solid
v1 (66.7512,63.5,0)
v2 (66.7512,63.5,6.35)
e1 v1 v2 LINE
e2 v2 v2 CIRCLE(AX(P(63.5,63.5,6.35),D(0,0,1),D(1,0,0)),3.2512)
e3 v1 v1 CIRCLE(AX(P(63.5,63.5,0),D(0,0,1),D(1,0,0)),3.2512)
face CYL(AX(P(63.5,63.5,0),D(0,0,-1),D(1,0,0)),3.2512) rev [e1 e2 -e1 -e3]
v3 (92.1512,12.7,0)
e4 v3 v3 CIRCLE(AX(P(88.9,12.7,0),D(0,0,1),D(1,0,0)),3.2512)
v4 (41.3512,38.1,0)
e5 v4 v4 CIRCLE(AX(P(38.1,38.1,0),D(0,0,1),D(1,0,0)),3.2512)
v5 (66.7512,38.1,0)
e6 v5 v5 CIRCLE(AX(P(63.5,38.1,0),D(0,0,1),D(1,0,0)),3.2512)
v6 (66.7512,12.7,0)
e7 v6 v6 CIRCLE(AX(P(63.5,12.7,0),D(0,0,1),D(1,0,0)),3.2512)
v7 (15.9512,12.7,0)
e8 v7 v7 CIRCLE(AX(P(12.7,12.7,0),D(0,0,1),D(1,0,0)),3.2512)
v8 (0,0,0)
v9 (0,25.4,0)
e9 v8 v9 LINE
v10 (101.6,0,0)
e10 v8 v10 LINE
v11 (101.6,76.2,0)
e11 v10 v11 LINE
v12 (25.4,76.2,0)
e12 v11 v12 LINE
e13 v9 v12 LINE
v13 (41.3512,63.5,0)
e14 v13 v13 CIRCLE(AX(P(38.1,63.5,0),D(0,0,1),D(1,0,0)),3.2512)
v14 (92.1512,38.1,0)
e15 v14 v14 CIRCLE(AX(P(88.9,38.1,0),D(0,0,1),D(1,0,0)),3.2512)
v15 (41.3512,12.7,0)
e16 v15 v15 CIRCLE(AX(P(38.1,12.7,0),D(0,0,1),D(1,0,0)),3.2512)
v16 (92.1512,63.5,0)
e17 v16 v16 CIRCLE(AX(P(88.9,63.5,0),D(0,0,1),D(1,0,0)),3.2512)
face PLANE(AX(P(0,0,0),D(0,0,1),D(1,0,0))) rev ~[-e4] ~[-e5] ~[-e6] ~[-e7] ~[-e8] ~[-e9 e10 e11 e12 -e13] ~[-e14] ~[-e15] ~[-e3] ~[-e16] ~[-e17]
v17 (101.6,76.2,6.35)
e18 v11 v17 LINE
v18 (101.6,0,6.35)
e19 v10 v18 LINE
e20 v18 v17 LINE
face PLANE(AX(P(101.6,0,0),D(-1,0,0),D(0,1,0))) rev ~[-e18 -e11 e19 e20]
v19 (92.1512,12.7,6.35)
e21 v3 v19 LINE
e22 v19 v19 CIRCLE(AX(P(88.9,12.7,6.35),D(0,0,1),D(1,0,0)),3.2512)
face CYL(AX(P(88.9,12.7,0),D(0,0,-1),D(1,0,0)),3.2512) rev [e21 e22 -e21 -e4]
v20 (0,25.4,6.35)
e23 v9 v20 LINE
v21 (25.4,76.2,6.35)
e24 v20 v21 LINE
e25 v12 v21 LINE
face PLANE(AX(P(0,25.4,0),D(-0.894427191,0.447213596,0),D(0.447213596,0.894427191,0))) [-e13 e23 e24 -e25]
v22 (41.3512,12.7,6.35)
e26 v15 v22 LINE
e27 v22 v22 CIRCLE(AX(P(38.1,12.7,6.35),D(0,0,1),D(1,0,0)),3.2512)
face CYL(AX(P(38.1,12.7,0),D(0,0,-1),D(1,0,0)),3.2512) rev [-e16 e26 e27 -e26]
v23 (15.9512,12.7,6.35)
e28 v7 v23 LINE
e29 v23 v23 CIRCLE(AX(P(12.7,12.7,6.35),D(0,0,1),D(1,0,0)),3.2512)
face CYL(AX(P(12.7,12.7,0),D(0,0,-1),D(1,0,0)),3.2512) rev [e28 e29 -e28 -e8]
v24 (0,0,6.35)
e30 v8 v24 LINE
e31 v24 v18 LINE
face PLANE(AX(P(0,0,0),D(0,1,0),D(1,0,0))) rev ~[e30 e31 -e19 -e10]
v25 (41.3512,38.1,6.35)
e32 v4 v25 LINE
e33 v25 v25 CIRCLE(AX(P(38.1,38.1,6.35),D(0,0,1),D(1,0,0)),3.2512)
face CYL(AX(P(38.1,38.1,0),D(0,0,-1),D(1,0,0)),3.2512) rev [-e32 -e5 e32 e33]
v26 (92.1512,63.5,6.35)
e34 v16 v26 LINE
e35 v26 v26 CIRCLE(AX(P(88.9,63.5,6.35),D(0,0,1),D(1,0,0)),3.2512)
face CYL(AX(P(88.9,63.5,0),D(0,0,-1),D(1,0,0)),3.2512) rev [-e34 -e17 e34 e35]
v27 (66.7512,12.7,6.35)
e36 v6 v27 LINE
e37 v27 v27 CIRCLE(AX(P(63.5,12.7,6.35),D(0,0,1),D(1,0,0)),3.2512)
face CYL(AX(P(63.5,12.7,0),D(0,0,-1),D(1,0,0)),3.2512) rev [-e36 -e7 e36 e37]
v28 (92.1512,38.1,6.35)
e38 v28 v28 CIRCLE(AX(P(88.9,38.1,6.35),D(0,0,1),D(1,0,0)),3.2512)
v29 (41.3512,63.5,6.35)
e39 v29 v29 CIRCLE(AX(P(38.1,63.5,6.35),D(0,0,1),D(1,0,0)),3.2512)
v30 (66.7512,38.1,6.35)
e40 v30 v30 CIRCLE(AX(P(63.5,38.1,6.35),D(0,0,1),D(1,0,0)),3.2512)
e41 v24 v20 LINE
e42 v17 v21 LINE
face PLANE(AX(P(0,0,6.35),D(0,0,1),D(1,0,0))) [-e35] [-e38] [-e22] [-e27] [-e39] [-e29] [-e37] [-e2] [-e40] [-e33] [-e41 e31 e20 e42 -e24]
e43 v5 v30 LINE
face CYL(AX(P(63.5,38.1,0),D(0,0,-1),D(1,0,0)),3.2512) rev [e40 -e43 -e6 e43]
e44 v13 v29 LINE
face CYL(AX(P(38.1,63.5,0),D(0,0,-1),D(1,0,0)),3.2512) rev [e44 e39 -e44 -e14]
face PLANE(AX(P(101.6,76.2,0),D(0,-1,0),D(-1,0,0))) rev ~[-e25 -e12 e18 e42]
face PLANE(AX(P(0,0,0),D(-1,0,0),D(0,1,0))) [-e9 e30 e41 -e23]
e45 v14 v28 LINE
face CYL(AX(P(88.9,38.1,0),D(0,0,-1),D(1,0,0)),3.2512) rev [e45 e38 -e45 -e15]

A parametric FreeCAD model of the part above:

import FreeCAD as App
import Part
import Sketcher
from FreeCAD import Vector
Q = App.Units.Quantity


def add_polygon(sketch, points):
    """Adds a closed chain of lines whose ends are joined by coincident constraints."""
    first, n = sketch.GeometryCount, len(points)
    for a, b in zip(points, points[1:] + points[:1]):
        sketch.addGeometry(Part.LineSegment(App.Vector(*a, 0), App.Vector(*b, 0)), False)
    for i in range(n):
        sketch.addConstraint(Sketcher.Constraint("Coincident", first + i, 2, first + (i + 1) % n, 1))

doc = App.newDocument("Part")
body = doc.addObject("PartDesign::Body", "Body")

# Sketch on XY plane
sketch1 = doc.addObject("Sketcher::SketchObject", "Sketch")
body.addObject(sketch1)
sketch1.AttachmentSupport = (doc.XY_Plane, [""])
sketch1.MapMode = "FlatFace"
add_polygon(sketch1, [(0, 25.4), (0, 0), (101.6, 0), (101.6, 76.2), (25.4, 76.2)])  # lines 0-4
sketch1.addGeometry(Part.Circle(Vector(12.7, 12.7, 0), Vector(0, 0, 1), 3.2512), False)  # 5
sketch1.addGeometry(Part.Circle(Vector(38.1, 12.7, 0), Vector(0, 0, 1), 3.2512), False)  # 6
sketch1.addGeometry(Part.Circle(Vector(38.1, 38.1, 0), Vector(0, 0, 1), 3.2512), False)  # 7
sketch1.addGeometry(Part.Circle(Vector(63.5, 12.7, 0), Vector(0, 0, 1), 3.2512), False)  # 8
sketch1.addGeometry(Part.Circle(Vector(88.9, 12.7, 0), Vector(0, 0, 1), 3.2512), False)  # 9
sketch1.addGeometry(Part.Circle(Vector(63.5, 38.1, 0), Vector(0, 0, 1), 3.2512), False)  # 10
sketch1.addGeometry(Part.Circle(Vector(88.9, 38.1, 0), Vector(0, 0, 1), 3.2512), False)  # 11
sketch1.addGeometry(Part.Circle(Vector(38.1, 63.5, 0), Vector(0, 0, 1), 3.2512), False)  # 12
sketch1.addGeometry(Part.Circle(Vector(63.5, 63.5, 0), Vector(0, 0, 1), 3.2512), False)  # 13
sketch1.addGeometry(Part.Circle(Vector(88.9, 63.5, 0), Vector(0, 0, 1), 3.2512), False)  # 14
sketch1.addConstraint([
    Sketcher.Constraint("Vertical", 0),
    Sketcher.Constraint("Horizontal", 1),
    Sketcher.Constraint("Vertical", 2),
    Sketcher.Constraint("Horizontal", 3),
    Sketcher.Constraint("Coincident", 0, 2, -1, 1),
    Sketcher.Constraint("Equal", 5, 6),
    Sketcher.Constraint("Equal", 6, 7),
    Sketcher.Constraint("Equal", 7, 8),
    Sketcher.Constraint("Equal", 8, 9),
    Sketcher.Constraint("Equal", 9, 10),
    Sketcher.Constraint("Equal", 10, 11),
    Sketcher.Constraint("Equal", 11, 12),
    Sketcher.Constraint("Equal", 12, 13),
    Sketcher.Constraint("Equal", 13, 14),
    Sketcher.Constraint("Horizontal", 5, 3, 6, 3),
    Sketcher.Constraint("Horizontal", 6, 3, 8, 3),
    Sketcher.Constraint("Horizontal", 8, 3, 9, 3),
    Sketcher.Constraint("Horizontal", 7, 3, 10, 3),
    Sketcher.Constraint("Horizontal", 10, 3, 11, 3),
    Sketcher.Constraint("Horizontal", 12, 3, 13, 3),
    Sketcher.Constraint("Horizontal", 13, 3, 14, 3),
    Sketcher.Constraint("Vertical", 6, 3, 7, 3),
    Sketcher.Constraint("Vertical", 8, 3, 10, 3),
    Sketcher.Constraint("Vertical", 9, 3, 11, 3),
    Sketcher.Constraint("Vertical", 7, 3, 12, 3),
    Sketcher.Constraint("Vertical", 10, 3, 13, 3),
    Sketcher.Constraint("Vertical", 11, 3, 14, 3),
    Sketcher.Constraint("Equal", 3, 2),
    Sketcher.Constraint("DistanceX", 1, 1, 1, 2, Q("4 in")),
    Sketcher.Constraint("DistanceX", 3, 2, 3, 1, Q("3 in")),
    Sketcher.Constraint("DistanceY", 0, 2, 0, 1, Q("1 in")),
    Sketcher.Constraint("Diameter", 5, Q("0.256 in")),
    Sketcher.Constraint("DistanceX", 5, 3, 6, 3, Q("1 in")),
    Sketcher.Constraint("DistanceY", 6, 3, 7, 3, Q("1 in")),
    Sketcher.Constraint("DistanceX", 6, 3, 8, 3, Q("1 in")),
    Sketcher.Constraint("DistanceX", 8, 3, 9, 3, Q("1 in")),
    Sketcher.Constraint("DistanceY", 7, 3, 12, 3, Q("1 in")),
    Sketcher.Constraint("DistanceX", -1, 1, 5, 3, Q("0.5 in")),
    Sketcher.Constraint("DistanceY", -1, 1, 5, 3, Q("0.5 in")),
])
pad1 = doc.addObject("PartDesign::Pad", "Pad")
body.addObject(pad1)
pad1.Profile = sketch1
pad1.Length = Q("0.25 in")

doc.recompute()
